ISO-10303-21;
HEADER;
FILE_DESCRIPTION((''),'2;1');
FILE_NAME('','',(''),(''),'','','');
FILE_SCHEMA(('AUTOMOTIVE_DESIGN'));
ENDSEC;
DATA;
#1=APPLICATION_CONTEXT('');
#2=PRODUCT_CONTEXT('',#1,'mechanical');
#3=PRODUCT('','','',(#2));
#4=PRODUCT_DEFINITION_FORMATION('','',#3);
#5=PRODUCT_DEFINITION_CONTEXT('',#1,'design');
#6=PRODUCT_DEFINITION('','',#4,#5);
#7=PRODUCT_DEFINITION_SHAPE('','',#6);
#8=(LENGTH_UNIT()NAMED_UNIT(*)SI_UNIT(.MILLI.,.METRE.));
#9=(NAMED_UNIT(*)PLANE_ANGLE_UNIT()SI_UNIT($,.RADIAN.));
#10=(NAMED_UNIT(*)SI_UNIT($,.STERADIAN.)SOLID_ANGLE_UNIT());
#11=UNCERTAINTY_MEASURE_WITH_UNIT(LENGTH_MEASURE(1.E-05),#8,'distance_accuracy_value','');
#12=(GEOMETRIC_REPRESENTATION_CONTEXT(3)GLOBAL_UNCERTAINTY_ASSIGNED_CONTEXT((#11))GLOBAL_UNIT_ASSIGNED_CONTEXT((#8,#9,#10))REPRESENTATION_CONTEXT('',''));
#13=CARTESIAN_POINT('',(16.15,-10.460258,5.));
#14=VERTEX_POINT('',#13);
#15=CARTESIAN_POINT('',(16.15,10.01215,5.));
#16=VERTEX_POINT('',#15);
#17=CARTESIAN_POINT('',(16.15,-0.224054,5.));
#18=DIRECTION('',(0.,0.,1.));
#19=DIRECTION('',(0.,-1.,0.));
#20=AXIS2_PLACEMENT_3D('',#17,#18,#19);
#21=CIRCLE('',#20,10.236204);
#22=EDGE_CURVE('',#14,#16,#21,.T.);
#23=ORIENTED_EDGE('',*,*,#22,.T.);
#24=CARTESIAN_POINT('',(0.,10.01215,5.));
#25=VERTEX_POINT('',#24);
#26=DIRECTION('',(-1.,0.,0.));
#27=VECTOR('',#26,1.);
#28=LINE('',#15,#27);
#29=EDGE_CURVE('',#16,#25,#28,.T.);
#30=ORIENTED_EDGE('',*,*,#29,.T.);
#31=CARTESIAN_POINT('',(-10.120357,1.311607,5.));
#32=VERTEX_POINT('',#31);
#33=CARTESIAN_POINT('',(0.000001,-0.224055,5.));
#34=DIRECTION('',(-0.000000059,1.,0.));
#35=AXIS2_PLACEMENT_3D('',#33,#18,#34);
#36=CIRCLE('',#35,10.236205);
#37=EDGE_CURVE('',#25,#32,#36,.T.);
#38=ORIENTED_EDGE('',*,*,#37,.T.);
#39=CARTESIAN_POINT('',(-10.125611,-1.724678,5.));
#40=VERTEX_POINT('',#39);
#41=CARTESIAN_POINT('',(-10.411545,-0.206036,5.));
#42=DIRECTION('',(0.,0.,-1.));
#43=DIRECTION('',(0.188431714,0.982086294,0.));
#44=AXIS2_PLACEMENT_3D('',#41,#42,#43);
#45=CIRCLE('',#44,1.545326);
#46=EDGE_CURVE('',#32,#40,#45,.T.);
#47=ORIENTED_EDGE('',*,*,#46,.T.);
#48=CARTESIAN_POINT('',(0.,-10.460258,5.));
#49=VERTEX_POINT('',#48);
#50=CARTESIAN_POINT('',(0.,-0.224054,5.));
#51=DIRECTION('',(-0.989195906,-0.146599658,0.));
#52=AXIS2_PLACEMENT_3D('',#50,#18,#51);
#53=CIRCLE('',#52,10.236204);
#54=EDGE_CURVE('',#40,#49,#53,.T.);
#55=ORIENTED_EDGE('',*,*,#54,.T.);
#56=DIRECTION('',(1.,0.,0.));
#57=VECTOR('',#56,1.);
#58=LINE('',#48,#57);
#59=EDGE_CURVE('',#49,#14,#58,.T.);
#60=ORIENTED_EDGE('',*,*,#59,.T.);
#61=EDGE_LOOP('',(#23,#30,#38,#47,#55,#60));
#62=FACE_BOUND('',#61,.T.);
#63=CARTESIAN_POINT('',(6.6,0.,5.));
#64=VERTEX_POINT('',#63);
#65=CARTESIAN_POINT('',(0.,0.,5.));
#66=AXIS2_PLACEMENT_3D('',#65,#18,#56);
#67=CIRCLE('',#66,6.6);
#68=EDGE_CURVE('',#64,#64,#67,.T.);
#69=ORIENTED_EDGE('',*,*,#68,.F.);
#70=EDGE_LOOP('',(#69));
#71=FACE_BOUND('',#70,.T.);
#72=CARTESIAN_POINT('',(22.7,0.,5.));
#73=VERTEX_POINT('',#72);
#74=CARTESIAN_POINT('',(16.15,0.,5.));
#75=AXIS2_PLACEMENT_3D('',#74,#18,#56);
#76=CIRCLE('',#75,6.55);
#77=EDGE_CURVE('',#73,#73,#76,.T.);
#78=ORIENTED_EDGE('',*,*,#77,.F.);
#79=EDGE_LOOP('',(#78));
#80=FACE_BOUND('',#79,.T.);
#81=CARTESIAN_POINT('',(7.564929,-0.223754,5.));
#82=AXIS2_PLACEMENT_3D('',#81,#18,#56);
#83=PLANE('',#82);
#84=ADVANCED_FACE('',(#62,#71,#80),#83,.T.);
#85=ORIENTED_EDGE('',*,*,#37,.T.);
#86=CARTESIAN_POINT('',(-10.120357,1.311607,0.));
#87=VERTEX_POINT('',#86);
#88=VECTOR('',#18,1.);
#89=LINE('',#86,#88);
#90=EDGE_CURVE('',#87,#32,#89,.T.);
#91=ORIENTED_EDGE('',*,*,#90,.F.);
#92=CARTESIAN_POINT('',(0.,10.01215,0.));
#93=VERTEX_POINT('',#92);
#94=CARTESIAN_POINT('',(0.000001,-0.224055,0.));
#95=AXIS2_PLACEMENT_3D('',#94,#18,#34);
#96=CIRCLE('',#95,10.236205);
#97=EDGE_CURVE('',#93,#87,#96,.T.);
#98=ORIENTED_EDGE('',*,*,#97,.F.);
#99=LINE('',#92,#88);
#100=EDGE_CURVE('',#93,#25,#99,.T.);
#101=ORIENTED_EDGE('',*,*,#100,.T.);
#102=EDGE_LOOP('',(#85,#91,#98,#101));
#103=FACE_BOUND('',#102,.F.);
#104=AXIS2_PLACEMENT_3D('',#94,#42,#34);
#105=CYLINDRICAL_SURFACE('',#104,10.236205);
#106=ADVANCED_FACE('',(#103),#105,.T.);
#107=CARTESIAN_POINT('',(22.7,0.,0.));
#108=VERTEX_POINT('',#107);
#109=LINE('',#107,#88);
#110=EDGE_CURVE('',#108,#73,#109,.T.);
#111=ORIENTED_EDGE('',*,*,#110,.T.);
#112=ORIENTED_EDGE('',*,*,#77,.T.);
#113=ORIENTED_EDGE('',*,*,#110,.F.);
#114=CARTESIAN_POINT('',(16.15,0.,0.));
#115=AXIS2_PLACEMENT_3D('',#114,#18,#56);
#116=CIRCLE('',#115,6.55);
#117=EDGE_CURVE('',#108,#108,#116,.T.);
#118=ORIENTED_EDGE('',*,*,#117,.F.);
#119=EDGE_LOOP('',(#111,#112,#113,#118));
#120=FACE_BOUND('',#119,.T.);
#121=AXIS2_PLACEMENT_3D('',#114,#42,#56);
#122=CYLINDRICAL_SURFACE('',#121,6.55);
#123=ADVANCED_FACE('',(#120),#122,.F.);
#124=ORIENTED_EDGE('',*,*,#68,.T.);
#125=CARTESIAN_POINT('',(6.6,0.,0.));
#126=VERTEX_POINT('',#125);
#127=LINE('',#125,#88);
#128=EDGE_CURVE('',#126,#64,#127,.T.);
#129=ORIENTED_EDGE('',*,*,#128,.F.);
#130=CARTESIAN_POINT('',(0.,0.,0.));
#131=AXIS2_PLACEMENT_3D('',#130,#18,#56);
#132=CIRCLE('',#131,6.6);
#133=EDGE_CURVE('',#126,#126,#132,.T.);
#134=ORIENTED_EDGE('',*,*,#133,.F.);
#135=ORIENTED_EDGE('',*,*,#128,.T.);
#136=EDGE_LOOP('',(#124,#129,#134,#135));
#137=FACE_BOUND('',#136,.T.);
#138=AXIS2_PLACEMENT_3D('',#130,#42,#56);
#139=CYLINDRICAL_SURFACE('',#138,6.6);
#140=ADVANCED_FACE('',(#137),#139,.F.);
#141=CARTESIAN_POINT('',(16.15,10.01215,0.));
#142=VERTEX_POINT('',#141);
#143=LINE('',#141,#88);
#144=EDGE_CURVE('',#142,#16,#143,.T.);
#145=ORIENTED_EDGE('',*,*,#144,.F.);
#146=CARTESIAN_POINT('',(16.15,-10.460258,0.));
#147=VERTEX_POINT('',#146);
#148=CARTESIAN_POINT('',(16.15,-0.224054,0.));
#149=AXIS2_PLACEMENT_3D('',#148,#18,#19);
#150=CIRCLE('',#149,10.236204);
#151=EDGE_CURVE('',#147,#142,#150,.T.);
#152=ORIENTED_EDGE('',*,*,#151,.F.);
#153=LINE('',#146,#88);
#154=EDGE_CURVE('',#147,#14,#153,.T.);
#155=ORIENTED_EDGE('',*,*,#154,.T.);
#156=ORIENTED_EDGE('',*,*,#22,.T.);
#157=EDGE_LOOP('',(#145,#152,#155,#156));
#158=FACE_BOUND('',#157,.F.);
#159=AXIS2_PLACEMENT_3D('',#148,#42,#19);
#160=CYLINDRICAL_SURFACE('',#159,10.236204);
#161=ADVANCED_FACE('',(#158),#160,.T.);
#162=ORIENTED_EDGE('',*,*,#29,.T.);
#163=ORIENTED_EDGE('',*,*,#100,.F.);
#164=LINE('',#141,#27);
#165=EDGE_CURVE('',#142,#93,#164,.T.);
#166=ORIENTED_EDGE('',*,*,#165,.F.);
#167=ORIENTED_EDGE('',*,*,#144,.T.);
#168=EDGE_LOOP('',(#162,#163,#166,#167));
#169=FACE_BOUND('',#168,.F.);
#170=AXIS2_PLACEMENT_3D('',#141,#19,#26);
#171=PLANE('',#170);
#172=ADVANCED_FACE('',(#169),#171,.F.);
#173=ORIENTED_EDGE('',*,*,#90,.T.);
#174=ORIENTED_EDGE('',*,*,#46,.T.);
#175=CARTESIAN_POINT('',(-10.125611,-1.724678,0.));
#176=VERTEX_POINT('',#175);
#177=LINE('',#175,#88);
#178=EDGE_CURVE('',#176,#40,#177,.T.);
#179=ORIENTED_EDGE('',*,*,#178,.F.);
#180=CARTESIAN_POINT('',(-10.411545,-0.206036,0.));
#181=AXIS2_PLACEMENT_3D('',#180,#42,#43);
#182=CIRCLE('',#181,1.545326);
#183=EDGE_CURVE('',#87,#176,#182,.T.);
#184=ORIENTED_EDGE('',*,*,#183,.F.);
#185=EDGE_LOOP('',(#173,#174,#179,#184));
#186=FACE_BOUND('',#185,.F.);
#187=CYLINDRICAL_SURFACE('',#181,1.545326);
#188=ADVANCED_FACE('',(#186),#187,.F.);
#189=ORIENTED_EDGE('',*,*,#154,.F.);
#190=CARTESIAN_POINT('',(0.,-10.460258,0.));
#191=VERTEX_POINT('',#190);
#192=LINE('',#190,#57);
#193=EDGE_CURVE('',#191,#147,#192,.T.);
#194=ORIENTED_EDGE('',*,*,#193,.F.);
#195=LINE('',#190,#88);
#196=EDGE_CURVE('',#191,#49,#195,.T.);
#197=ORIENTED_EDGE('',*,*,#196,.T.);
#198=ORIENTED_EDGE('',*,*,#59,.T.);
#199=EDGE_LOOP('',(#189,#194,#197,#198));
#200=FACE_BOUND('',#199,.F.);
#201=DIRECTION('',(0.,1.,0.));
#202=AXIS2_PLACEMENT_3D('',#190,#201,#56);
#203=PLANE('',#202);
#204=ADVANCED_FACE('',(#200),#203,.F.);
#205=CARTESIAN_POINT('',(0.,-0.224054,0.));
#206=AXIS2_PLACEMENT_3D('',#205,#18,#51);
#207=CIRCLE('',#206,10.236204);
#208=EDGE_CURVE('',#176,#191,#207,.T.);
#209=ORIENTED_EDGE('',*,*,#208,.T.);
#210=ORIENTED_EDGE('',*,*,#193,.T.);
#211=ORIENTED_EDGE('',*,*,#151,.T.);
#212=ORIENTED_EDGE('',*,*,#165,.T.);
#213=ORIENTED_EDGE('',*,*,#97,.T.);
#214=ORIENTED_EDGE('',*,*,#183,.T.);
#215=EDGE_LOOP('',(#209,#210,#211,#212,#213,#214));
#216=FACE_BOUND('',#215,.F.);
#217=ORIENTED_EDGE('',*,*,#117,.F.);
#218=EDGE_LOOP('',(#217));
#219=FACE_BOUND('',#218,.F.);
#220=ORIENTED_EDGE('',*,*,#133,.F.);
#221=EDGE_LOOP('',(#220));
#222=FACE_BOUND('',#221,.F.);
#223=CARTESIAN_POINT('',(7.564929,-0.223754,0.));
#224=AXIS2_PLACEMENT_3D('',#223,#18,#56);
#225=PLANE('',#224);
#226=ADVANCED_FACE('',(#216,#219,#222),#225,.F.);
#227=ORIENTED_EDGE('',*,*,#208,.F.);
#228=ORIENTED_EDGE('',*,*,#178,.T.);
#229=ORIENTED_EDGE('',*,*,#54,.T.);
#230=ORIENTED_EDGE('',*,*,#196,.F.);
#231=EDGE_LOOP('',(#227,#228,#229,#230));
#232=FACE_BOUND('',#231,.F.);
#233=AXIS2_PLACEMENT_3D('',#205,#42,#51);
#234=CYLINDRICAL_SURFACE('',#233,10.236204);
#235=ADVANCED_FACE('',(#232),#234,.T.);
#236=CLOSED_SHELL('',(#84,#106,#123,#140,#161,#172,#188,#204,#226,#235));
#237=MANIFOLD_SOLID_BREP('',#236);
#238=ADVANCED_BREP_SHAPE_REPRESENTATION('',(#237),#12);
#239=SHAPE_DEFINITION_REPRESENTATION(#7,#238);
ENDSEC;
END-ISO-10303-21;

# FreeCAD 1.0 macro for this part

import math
import FreeCAD as App
import Part
import Sketcher

doc = App.newDocument("Part")
params = doc.addObject("Spreadsheet::Sheet", "Params")
for row, (alias, value) in enumerate([
    ("sketch1_diameter", "13.2 mm"),
    ("sketch1_diameter2", "13.1 mm"),
    ("sketch1_width", "16.15 mm"),
    ("sketch1_width2", "16.15 mm"),
    ("pad1_length", "5 mm"),
], start=1):
    params.set(f"A{row}", alias)
    params.set(f"B{row}", "=" + value)
    params.setAlias(f"B{row}", alias)

body = doc.addObject("PartDesign::Body", "Body")

sketch1 = doc.addObject("Sketcher::SketchObject", "Sketch")
body.addObject(sketch1)
sketch1.AttachmentSupport = (doc.XY_Plane, [""])
sketch1.MapMode = "FlatFace"
sketch1.addGeometry([
    Part.LineSegment(App.Vector(16.15, 10.01215, 0), App.Vector(0, 10.01215, 0)),
    Part.ArcOfCircle(Part.Circle(App.Vector(0.000001, -0.224055, 0), App.Vector(0, 0, 1), 10.236205), math.radians(90.000003), math.radians(171.371763)),
    Part.ArcOfCircle(Part.Circle(App.Vector(-10.411545, -0.206036, 0), App.Vector(0, 0, 1), 1.545326), math.radians(-79.337015), math.radians(79.138725)),
    Part.ArcOfCircle(Part.Circle(App.Vector(0, -0.224054, 0), App.Vector(0, 0, 1), 10.236204), math.radians(-171.570077), math.radians(-90.000001)),
    Part.LineSegment(App.Vector(0, -10.460258, 0), App.Vector(16.15, -10.460258, 0)),
    Part.ArcOfCircle(Part.Circle(App.Vector(16.15, -0.224054, 0), App.Vector(0, 0, 1), 10.236204), math.radians(-90), math.radians(90)),
    Part.Circle(App.Vector(0, 0, 0), App.Vector(0, 0, 1), 6.6),
    Part.Circle(App.Vector(16.15, 0, 0), App.Vector(0, 0, 1), 6.55),
], False)
sketch1.addConstraint([
    Sketcher.Constraint("Coincident", 0, 2, 1, 1),
    Sketcher.Constraint("Coincident", 1, 2, 2, 2),
    Sketcher.Constraint("Coincident", 2, 1, 3, 1),
    Sketcher.Constraint("Coincident", 3, 2, 4, 1),
    Sketcher.Constraint("Coincident", 4, 2, 5, 1),
    Sketcher.Constraint("Coincident", 5, 2, 0, 1),
    Sketcher.Constraint("Horizontal", 0),
    Sketcher.Constraint("Horizontal", 4),
    Sketcher.Constraint("Coincident", 6, 3, -1, 1),
    Sketcher.Constraint("Coincident", 3, 3, 1, 3),
    Sketcher.Constraint("PointOnObject", 1, 3, -2),
    Sketcher.Constraint("PointOnObject", 7, 3, -1),
    Sketcher.Constraint("PointOnObject", 0, 2, -2),
    Sketcher.Constraint("PointOnObject", 3, 2, -2),
    Sketcher.Constraint("Diameter", 6, 13.2),
    Sketcher.Constraint("Diameter", 7, 13.1),
    Sketcher.Constraint("DistanceX", 0, 2, 0, 1, 16.15),
    Sketcher.Constraint("DistanceX", 4, 1, 4, 2, 16.15),
    Sketcher.Constraint("DistanceX", -1, 1, 5, 3, 16.15),
    Sketcher.Constraint("DistanceX", -1, 1, 7, 3, 16.15),
    Sketcher.Constraint("Radius", 1, 10.236205),
    Sketcher.Constraint("Radius", 2, 1.545326),
    Sketcher.Constraint("Radius", 3, 10.236204),
    Sketcher.Constraint("DistanceY", -1, 1, 0, 2, 10.01215),
    Sketcher.Constraint("DistanceX", 2, 1, -1, 1, 10.125611),
    Sketcher.Constraint("DistanceY", 1, 3, 2, 3, 0.018019),
])
sketch1.setExpression("Constraints[14]", "Params.sketch1_diameter")
sketch1.setExpression("Constraints[15]", "Params.sketch1_diameter2")
sketch1.setExpression("Constraints[16]", "Params.sketch1_width")
sketch1.setExpression("Constraints[17]", "Params.sketch1_width2")
pad1 = doc.addObject("PartDesign::Pad", "Pad")
body.addObject(pad1)
pad1.Profile = sketch1
pad1.setExpression("Length", "Params.pad1_length")

doc.recompute()
